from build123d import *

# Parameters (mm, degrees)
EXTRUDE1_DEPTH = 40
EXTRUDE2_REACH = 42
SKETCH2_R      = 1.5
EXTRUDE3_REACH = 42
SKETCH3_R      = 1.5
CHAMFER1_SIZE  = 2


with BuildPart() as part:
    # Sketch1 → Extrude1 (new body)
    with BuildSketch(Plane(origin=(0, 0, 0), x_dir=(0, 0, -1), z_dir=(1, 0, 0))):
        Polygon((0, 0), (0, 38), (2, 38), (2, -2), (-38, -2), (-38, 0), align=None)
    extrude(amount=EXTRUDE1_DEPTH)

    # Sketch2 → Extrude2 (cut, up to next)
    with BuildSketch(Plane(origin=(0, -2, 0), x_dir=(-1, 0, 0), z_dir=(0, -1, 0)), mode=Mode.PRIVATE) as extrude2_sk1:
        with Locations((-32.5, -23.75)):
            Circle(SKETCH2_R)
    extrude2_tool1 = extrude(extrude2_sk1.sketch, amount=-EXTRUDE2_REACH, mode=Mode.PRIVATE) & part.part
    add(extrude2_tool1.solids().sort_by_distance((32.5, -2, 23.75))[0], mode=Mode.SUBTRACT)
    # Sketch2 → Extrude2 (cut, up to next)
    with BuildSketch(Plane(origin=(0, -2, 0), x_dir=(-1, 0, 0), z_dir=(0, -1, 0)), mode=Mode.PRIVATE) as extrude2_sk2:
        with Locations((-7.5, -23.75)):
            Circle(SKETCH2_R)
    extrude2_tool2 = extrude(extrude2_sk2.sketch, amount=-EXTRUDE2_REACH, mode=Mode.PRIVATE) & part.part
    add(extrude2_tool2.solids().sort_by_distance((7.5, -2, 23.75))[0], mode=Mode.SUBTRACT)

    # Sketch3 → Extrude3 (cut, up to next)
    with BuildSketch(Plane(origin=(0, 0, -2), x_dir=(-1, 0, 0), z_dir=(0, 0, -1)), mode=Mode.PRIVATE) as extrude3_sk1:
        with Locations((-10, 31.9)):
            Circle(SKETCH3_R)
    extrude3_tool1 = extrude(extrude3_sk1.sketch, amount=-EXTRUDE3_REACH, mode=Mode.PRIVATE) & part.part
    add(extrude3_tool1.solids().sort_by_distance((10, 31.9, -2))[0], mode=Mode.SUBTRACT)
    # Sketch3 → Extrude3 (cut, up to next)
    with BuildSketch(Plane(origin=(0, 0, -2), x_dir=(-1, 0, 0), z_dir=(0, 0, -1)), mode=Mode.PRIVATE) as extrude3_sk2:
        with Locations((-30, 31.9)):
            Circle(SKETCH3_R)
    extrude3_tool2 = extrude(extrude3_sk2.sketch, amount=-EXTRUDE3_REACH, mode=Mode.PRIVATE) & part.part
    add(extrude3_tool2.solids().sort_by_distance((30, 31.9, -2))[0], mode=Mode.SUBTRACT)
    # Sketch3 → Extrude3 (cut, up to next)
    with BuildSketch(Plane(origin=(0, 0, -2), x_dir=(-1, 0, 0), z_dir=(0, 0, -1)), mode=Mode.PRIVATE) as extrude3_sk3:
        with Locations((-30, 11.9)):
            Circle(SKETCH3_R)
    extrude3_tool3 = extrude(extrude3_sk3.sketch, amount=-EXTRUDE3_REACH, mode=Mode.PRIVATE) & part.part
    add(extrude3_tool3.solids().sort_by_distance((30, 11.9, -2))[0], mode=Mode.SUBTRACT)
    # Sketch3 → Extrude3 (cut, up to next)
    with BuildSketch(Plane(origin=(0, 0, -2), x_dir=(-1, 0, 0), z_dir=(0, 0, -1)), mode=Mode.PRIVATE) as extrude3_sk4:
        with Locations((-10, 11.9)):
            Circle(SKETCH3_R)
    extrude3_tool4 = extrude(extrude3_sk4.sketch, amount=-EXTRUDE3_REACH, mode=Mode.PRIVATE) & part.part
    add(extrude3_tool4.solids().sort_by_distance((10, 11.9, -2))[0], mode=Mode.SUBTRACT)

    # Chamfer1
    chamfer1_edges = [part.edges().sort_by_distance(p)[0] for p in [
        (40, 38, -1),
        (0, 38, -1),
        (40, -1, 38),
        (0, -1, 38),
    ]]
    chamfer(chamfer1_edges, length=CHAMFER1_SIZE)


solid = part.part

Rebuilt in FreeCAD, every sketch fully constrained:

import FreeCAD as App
import Part
import Sketcher
Q = App.Units.Quantity


def edges_at(feature, points):
    """Names of the edges that pass closest to the given points."""
    edges = feature.Shape.Edges
    near = lambda p: min(range(len(edges)), key=lambda i: edges[i].distToShape(Part.Vertex(*p))[0])
    return sorted({f"Edge{near(p) + 1}" for p in points})

doc = App.newDocument("Part")
body = doc.addObject("PartDesign::Body", "Body")

sketch1 = body.newObject("Sketcher::SketchObject", "Sketch")
sketch1.AttachmentSupport = (doc.getObject("YZ_Plane"), [""])
sketch1.MapMode = "FlatFace"
sketch1.addGeometry([
    Part.LineSegment(App.Vector(38, 0, 0), App.Vector(0, 0, 0)),
    Part.LineSegment(App.Vector(0, 0, 0), App.Vector(0, 38, 0)),
    Part.LineSegment(App.Vector(0, 38, 0), App.Vector(-2, 38, 0)),
    Part.LineSegment(App.Vector(-2, 38, 0), App.Vector(-2, -2, 0)),
    Part.LineSegment(App.Vector(-2, -2, 0), App.Vector(38, -2, 0)),
    Part.LineSegment(App.Vector(38, -2, 0), App.Vector(38, 0, 0)),
], False)
sketch1.addConstraint([
    Sketcher.Constraint("Coincident", 0, 2, 1, 1),
    Sketcher.Constraint("Coincident", 1, 2, 2, 1),
    Sketcher.Constraint("Coincident", 2, 2, 3, 1),
    Sketcher.Constraint("Coincident", 3, 2, 4, 1),
    Sketcher.Constraint("Coincident", 4, 2, 5, 1),
    Sketcher.Constraint("Coincident", 5, 2, 0, 1),
    Sketcher.Constraint("Horizontal", 0),
    Sketcher.Constraint("Vertical", 1),
    Sketcher.Constraint("Horizontal", 2),
    Sketcher.Constraint("Vertical", 3),
    Sketcher.Constraint("Horizontal", 4),
    Sketcher.Constraint("Vertical", 5),
    Sketcher.Constraint("Coincident", 0, 2, -1, 1),
    Sketcher.Constraint("Equal", 0, 1),
    Sketcher.Constraint("Equal", 4, 3),
    Sketcher.Constraint("DistanceX", 0, 2, 0, 1, Q("38 mm")),
    Sketcher.Constraint("DistanceX", 2, 2, 2, 1, Q("2 mm")),
])
pad1 = body.newObject("PartDesign::Pad", "Pad")
pad1.Profile = sketch1
pad1.Length = 40

sketch2 = body.newObject("Sketcher::SketchObject", "Sketch001")
sketch2.AttachmentSupport = (doc.getObject("XZ_Plane"), [""])
sketch2.MapMode = "FlatFace"
sketch2.AttachmentOffset = App.Placement(App.Vector(0, 0, 2), App.Rotation())
sketch2.addGeometry(Part.Circle(App.Vector(32.5, 23.75, 0), App.Vector(0, 0, 1), 1.5), False)
sketch2.addConstraint([
    Sketcher.Constraint("Diameter", 0, Q("3 mm")),
    Sketcher.Constraint("DistanceX", -1, 1, 0, 3, Q("32.5 mm")),
    Sketcher.Constraint("DistanceY", -1, 1, 0, 3, Q("23.75 mm")),
])
pocket1 = body.newObject("PartDesign::Pocket", "Pocket")
pocket1.Profile = sketch2
pocket1.Type = "UpToFirst"

sketch3 = body.newObject("Sketcher::SketchObject", "Sketch002")
sketch3.AttachmentSupport = (doc.getObject("XZ_Plane"), [""])
sketch3.MapMode = "FlatFace"
sketch3.AttachmentOffset = App.Placement(App.Vector(0, 0, 2), App.Rotation())
sketch3.addGeometry(Part.Circle(App.Vector(7.5, 23.75, 0), App.Vector(0, 0, 1), 1.5), False)
sketch3.addConstraint([
    Sketcher.Constraint("Diameter", 0, Q("3 mm")),
    Sketcher.Constraint("DistanceX", -1, 1, 0, 3, Q("7.5 mm")),
    Sketcher.Constraint("DistanceY", -1, 1, 0, 3, Q("23.75 mm")),
])
pocket2 = body.newObject("PartDesign::Pocket", "Pocket001")
pocket2.Profile = sketch3
pocket2.Type = "UpToFirst"

sketch4 = body.newObject("Sketcher::SketchObject", "Sketch003")
sketch4.AttachmentSupport = (doc.getObject("XY_Plane"), [""])
sketch4.MapMode = "FlatFace"
sketch4.AttachmentOffset = App.Placement(App.Vector(0, 0, -2), App.Rotation())
sketch4.addGeometry(Part.Circle(App.Vector(10, 31.9, 0), App.Vector(0, 0, 1), 1.5), False)
sketch4.addConstraint([
    Sketcher.Constraint("Diameter", 0, Q("3 mm")),
    Sketcher.Constraint("DistanceX", -1, 1, 0, 3, Q("10 mm")),
    Sketcher.Constraint("DistanceY", -1, 1, 0, 3, Q("31.9 mm")),
])
pocket3 = body.newObject("PartDesign::Pocket", "Pocket002")
pocket3.Profile = sketch4
pocket3.Type = "UpToFirst"
pocket3.Reversed = True

sketch5 = body.newObject("Sketcher::SketchObject", "Sketch004")
sketch5.AttachmentSupport = (doc.getObject("XY_Plane"), [""])
sketch5.MapMode = "FlatFace"
sketch5.AttachmentOffset = App.Placement(App.Vector(0, 0, -2), App.Rotation())
sketch5.addGeometry(Part.Circle(App.Vector(30, 31.9, 0), App.Vector(0, 0, 1), 1.5), False)
sketch5.addConstraint([
    Sketcher.Constraint("Diameter", 0, Q("3 mm")),
    Sketcher.Constraint("DistanceX", -1, 1, 0, 3, Q("30 mm")),
    Sketcher.Constraint("DistanceY", -1, 1, 0, 3, Q("31.9 mm")),
])
pocket4 = body.newObject("PartDesign::Pocket", "Pocket003")
pocket4.Profile = sketch5
pocket4.Type = "UpToFirst"
pocket4.Reversed = True

sketch6 = body.newObject("Sketcher::SketchObject", "Sketch005")
sketch6.AttachmentSupport = (doc.getObject("XY_Plane"), [""])
sketch6.MapMode = "FlatFace"
sketch6.AttachmentOffset = App.Placement(App.Vector(0, 0, -2), App.Rotation())
sketch6.addGeometry(Part.Circle(App.Vector(30, 11.9, 0), App.Vector(0, 0, 1), 1.5), False)
sketch6.addConstraint([
    Sketcher.Constraint("Diameter", 0, Q("3 mm")),
    Sketcher.Constraint("DistanceX", -1, 1, 0, 3, Q("30 mm")),
    Sketcher.Constraint("DistanceY", -1, 1, 0, 3, Q("11.9 mm")),
])
pocket5 = body.newObject("PartDesign::Pocket", "Pocket004")
pocket5.Profile = sketch6
pocket5.Type = "UpToFirst"
pocket5.Reversed = True

sketch7 = body.newObject("Sketcher::SketchObject", "Sketch006")
sketch7.AttachmentSupport = (doc.getObject("XY_Plane"), [""])
sketch7.MapMode = "FlatFace"
sketch7.AttachmentOffset = App.Placement(App.Vector(0, 0, -2), App.Rotation())
sketch7.addGeometry(Part.Circle(App.Vector(10, 11.9, 0), App.Vector(0, 0, 1), 1.5), False)
sketch7.addConstraint([
    Sketcher.Constraint("Diameter", 0, Q("3 mm")),
    Sketcher.Constraint("DistanceX", -1, 1, 0, 3, Q("10 mm")),
    Sketcher.Constraint("DistanceY", -1, 1, 0, 3, Q("11.9 mm")),
])
pocket6 = body.newObject("PartDesign::Pocket", "Pocket005")
pocket6.Profile = sketch7
pocket6.Type = "UpToFirst"
pocket6.Reversed = True
doc.recompute()

chamfer = body.newObject("PartDesign::Chamfer", "Chamfer")
chamfer.Base = (pocket6, edges_at(pocket6, [
    (40, 38, -1),
    (0, 38, -1),
    (40, -1, 38),
    (0, -1, 38),
]))
chamfer.Size = 2

doc.recompute()
